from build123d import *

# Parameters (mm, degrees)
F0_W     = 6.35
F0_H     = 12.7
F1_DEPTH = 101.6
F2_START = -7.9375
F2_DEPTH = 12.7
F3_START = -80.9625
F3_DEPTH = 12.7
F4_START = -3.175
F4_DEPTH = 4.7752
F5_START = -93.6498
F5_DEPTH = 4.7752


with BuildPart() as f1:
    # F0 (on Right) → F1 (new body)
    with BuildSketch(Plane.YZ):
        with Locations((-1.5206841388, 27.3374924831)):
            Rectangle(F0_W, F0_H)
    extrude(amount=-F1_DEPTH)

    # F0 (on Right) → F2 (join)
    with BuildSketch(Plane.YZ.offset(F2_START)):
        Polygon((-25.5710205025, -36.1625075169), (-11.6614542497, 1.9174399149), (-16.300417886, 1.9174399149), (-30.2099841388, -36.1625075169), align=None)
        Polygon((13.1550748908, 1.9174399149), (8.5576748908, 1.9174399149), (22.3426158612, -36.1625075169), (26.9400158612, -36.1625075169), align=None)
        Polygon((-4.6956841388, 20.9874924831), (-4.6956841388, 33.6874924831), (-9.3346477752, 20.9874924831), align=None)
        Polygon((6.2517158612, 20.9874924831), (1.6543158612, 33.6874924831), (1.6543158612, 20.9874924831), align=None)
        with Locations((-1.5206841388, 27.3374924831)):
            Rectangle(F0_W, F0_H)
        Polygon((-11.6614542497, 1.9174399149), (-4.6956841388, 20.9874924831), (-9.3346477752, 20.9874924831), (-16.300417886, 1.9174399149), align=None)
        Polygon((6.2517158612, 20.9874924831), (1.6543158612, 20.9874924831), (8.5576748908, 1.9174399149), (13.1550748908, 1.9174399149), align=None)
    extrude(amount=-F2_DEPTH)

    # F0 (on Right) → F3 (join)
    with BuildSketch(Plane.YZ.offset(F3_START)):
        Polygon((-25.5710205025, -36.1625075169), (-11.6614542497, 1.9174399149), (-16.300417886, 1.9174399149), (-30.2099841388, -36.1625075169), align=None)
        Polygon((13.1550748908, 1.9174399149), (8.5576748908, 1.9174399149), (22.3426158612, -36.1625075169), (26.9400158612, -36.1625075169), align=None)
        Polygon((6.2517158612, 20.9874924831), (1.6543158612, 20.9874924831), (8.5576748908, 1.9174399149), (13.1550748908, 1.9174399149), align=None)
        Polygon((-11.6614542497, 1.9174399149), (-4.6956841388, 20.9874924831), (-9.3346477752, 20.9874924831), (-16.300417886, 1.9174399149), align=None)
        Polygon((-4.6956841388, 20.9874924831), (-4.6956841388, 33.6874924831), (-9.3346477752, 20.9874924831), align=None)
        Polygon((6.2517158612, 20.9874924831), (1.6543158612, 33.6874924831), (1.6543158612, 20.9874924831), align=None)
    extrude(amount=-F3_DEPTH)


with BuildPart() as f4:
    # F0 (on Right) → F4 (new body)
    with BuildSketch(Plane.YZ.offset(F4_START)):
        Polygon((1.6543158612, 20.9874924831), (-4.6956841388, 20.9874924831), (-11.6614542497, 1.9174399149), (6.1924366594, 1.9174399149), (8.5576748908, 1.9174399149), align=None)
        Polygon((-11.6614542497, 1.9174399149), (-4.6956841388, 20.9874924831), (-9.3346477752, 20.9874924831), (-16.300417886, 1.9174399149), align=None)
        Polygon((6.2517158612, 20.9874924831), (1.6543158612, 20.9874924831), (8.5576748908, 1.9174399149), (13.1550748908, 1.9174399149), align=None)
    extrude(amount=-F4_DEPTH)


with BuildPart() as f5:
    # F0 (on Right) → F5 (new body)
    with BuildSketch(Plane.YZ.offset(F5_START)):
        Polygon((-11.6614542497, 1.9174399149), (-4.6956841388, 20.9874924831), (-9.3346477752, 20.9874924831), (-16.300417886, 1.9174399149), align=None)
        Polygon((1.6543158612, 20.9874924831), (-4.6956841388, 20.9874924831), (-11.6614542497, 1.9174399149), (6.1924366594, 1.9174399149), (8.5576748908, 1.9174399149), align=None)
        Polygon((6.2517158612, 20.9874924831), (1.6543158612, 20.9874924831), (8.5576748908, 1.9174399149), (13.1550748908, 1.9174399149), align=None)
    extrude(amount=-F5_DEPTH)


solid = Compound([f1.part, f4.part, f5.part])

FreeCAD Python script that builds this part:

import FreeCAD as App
import Part
import Sketcher

V = App.Vector
Q = App.Units.Quantity


def add_polygon(sketch, points):
    """Adds a closed chain of lines whose ends are joined by coincident constraints."""
    first, n = sketch.GeometryCount, len(points)
    for a, b in zip(points, points[1:] + points[:1]):
        sketch.addGeometry(Part.LineSegment(App.Vector(*a, 0), App.Vector(*b, 0)), False)
    for i in range(n):
        sketch.addConstraint(Sketcher.Constraint("Coincident", first + i, 2, first + (i + 1) % n, 1))

doc = App.newDocument("Part")
body = doc.addObject("PartDesign::Body", "Body")

# Sketch on YZ plane
sketch1 = body.newObject("Sketcher::SketchObject", "Sketch")
sketch1.AttachmentSupport = (doc.getObject("YZ_Plane"), [""])
sketch1.MapMode = "FlatFace"
add_polygon(sketch1, [(-5, 34), (-5, 21), (2, 21), (2, 34)])  # lines 0-3
sketch1.addConstraint(Sketcher.Constraint("Vertical", 0))
sketch1.addConstraint(Sketcher.Constraint("Horizontal", 1))
sketch1.addConstraint(Sketcher.Constraint("Vertical", 2))
sketch1.addConstraint(Sketcher.Constraint("Horizontal", 3))
sketch1.addConstraint(Sketcher.Constraint("DistanceY", 0, 2, 0, 1, Q("0.5 in")))
sketch1.addConstraint(Sketcher.Constraint("DistanceX", 1, 1, 1, 2, Q("0.25 in")))
sketch1.addConstraint(Sketcher.Constraint("DistanceX", 0, 2, -1, 1, 4.695684))
sketch1.addConstraint(Sketcher.Constraint("DistanceY", -1, 1, 0, 2, 20.987492))
pad1 = body.newObject("PartDesign::Pad", "Pad")
pad1.Profile = sketch1
pad1.Length = Q("4 in")
pad1.Reversed = True

# Sketch on YZ plane
sketch2 = body.newObject("Sketcher::SketchObject", "Sketch001")
sketch2.AttachmentSupport = (doc.getObject("YZ_Plane"), [""])
sketch2.MapMode = "FlatFace"
sketch2.AttachmentOffset = App.Placement(V(0, 0, -0.3125 * 25.4), App.Rotation())
add_polygon(sketch2, [(-25.6, -36.2), (-11.7, 1.9), (-4.7, 21), (1.7, 21), (8.6, 1.9), (22.3, -36.2), (26.9, -36.2), (13.2, 1.9), (6.3, 21), (1.7, 33.7), (-4.7, 33.7), (-9.3, 21), (-30.2, -36.2)])  # lines 0-12
sketch2.addConstraint(Sketcher.Constraint("Horizontal", 2))
sketch2.addConstraint(Sketcher.Constraint("Horizontal", 5))
sketch2.addConstraint(Sketcher.Constraint("Horizontal", 9))
sketch2.addConstraint(Sketcher.Constraint("Horizontal", 12))
sketch2.addConstraint(Sketcher.Constraint("Parallel", 0, 1))
sketch2.addConstraint(Sketcher.Constraint("Parallel", 3, 4))
sketch2.addConstraint(Sketcher.Constraint("Parallel", 4, 6))
sketch2.addConstraint(Sketcher.Constraint("Parallel", 6, 7))
sketch2.addConstraint(Sketcher.Constraint("Parallel", 7, 8))
sketch2.addConstraint(Sketcher.Constraint("Parallel", 1, 10))
sketch2.addConstraint(Sketcher.Constraint("Parallel", 10, 11))
sketch2.addConstraint(Sketcher.Constraint("Horizontal", 0, 2, 3, 2))
sketch2.addConstraint(Sketcher.Constraint("Horizontal", 3, 2, 6, 2))
sketch2.addConstraint(Sketcher.Constraint("Horizontal", 2, 2, 7, 2))
sketch2.addConstraint(Sketcher.Constraint("Horizontal", 7, 2, 10, 2))
sketch2.addConstraint(Sketcher.Constraint("Horizontal", 5, 2, 11, 2))
sketch2.addConstraint(Sketcher.Constraint("Vertical", 2, 2, 8, 2))
sketch2.addConstraint(Sketcher.Constraint("Vertical", 1, 2, 9, 2))
sketch2.addConstraint(Sketcher.Constraint("DistanceX", 2, 1, 2, 2, Q("0.25 in")))
sketch2.addConstraint(Sketcher.Constraint("DistanceY", 2, 2, 8, 2, Q("0.5 in")))
sketch2.addConstraint(Sketcher.Constraint("DistanceX", 5, 1, 5, 2, Q("0.181 in")))
sketch2.addConstraint(Sketcher.Constraint("DistanceY", 4, 2, 2, 2, Q("2.25 in")))
sketch2.addConstraint(Sketcher.Constraint("DistanceX", 11, 2, 5, 2, Q("2.25 in")))
sketch2.addConstraint(Sketcher.Constraint("DistanceY", -1, 1, 0, 2, 1.91744))
sketch2.addConstraint(Sketcher.Constraint("DistanceX", 12, 2, -1, 1, 25.571021))
sketch2.addConstraint(Sketcher.Constraint("DistanceX", 0, 2, 1, 2, 6.96577))
pad2 = body.newObject("PartDesign::Pad", "Pad001")
pad2.Profile = sketch2
pad2.Length = Q("0.5 in")
pad2.Reversed = True

# Sketch on YZ plane
sketch3 = body.newObject("Sketcher::SketchObject", "Sketch002")
sketch3.AttachmentSupport = (doc.getObject("YZ_Plane"), [""])
sketch3.MapMode = "FlatFace"
sketch3.AttachmentOffset = App.Placement(V(0, 0, -3.1875 * 25.4), App.Rotation())
add_polygon(sketch3, [(-25.6, -36.2), (-11.7, 1.9), (-4.7, 21), (-4.7, 33.7), (-9.3, 21), (-30.2, -36.2)])  # lines 0-5
add_polygon(sketch3, [(8.6, 1.9), (22.3, -36.2), (26.9, -36.2), (13.2, 1.9), (6.3, 21), (1.7, 33.7), (1.7, 21)])  # lines 6-12
sketch3.addConstraint(Sketcher.Constraint("Vertical", 2))
sketch3.addConstraint(Sketcher.Constraint("Horizontal", 5))
sketch3.addConstraint(Sketcher.Constraint("Horizontal", 7))
sketch3.addConstraint(Sketcher.Constraint("Vertical", 11))
sketch3.addConstraint(Sketcher.Constraint("Parallel", 0, 1))
sketch3.addConstraint(Sketcher.Constraint("Parallel", 1, 3))
sketch3.addConstraint(Sketcher.Constraint("Parallel", 3, 4))
sketch3.addConstraint(Sketcher.Constraint("Parallel", 6, 8))
sketch3.addConstraint(Sketcher.Constraint("Parallel", 8, 9))
sketch3.addConstraint(Sketcher.Constraint("Parallel", 9, 10))
sketch3.addConstraint(Sketcher.Constraint("Parallel", 10, 12))
sketch3.addConstraint(Sketcher.Constraint("Horizontal", 1, 2, 3, 2))
sketch3.addConstraint(Sketcher.Constraint("Horizontal", 5, 2, 6, 2))
sketch3.addConstraint(Sketcher.Constraint("Horizontal", 0, 2, 8, 2))
sketch3.addConstraint(Sketcher.Constraint("Horizontal", 3, 2, 9, 2))
sketch3.addConstraint(Sketcher.Constraint("Horizontal", 2, 2, 10, 2))
sketch3.addConstraint(Sketcher.Constraint("Horizontal", 9, 2, 11, 2))
sketch3.addConstraint(Sketcher.Constraint("Horizontal", 8, 2, 12, 2))
sketch3.addConstraint(Sketcher.Constraint("DistanceY", 2, 1, 2, 2, Q("0.5 in")))
sketch3.addConstraint(Sketcher.Constraint("DistanceX", 7, 1, 7, 2, Q("0.181 in")))
sketch3.addConstraint(Sketcher.Constraint("DistanceY", 4, 2, 3, 2, Q("2.25 in")))
sketch3.addConstraint(Sketcher.Constraint("DistanceX", 4, 2, 7, 2, Q("2.25 in")))
sketch3.addConstraint(Sketcher.Constraint("DistanceX", 2, 2, 10, 2, Q("0.25 in")))
sketch3.addConstraint(Sketcher.Constraint("DistanceY", -1, 1, 0, 2, 1.91744))
sketch3.addConstraint(Sketcher.Constraint("DistanceX", 5, 2, -1, 1, 25.571021))
sketch3.addConstraint(Sketcher.Constraint("DistanceX", 0, 2, 1, 2, 6.96577))
pad3 = body.newObject("PartDesign::Pad", "Pad002")
pad3.Profile = sketch3
pad3.Length = Q("0.5 in")
pad3.Reversed = True
body2 = doc.addObject("PartDesign::Body", "Body001")

# Sketch on YZ plane
sketch4 = body2.newObject("Sketcher::SketchObject", "Sketch003")
sketch4.AttachmentSupport = (doc.getObject("YZ_Plane001"), [""])
sketch4.MapMode = "FlatFace"
sketch4.AttachmentOffset = App.Placement(V(0, 0, -0.125 * 25.4), App.Rotation())
add_polygon(sketch4, [(-9, 21), (-16, 2), (13, 2), (6, 21)])  # lines 0-3
sketch4.addConstraint(Sketcher.Constraint("Horizontal", 1))
sketch4.addConstraint(Sketcher.Constraint("Horizontal", 3))
sketch4.addConstraint(Sketcher.Constraint("DistanceX", 1, 1, 1, 2, 29.455493))
sketch4.addConstraint(Sketcher.Constraint("DistanceX", 3, 2, 3, 1, 15.586364))
sketch4.addConstraint(Sketcher.Constraint("DistanceY", -1, 1, 0, 2, 1.91744))
sketch4.addConstraint(Sketcher.Constraint("DistanceX", 2, 2, 1, 2, 6.903359))
sketch4.addConstraint(Sketcher.Constraint("Distance", 0, 20.302435))
sketch4.addConstraint(Sketcher.Constraint("DistanceX", 0, 2, -1, 1, 16.300418))
pad4 = body2.newObject("PartDesign::Pad", "Pad003")
pad4.Profile = sketch4
pad4.Length = Q("0.188 in")
pad4.Reversed = True
body3 = doc.addObject("PartDesign::Body", "Body002")

# Sketch on YZ plane
sketch5 = body3.newObject("Sketcher::SketchObject", "Sketch004")
sketch5.AttachmentSupport = (doc.getObject("YZ_Plane002"), [""])
sketch5.MapMode = "FlatFace"
sketch5.AttachmentOffset = App.Placement(V(0, 0, -3.687 * 25.4), App.Rotation())
add_polygon(sketch5, [(-9, 21), (-16, 2), (13, 2), (6, 21)])  # lines 0-3
sketch5.addConstraint(Sketcher.Constraint("Horizontal", 1))
sketch5.addConstraint(Sketcher.Constraint("Horizontal", 3))
sketch5.addConstraint(Sketcher.Constraint("DistanceX", 1, 1, 1, 2, 29.455493))
sketch5.addConstraint(Sketcher.Constraint("DistanceX", 3, 2, 3, 1, 15.586364))
sketch5.addConstraint(Sketcher.Constraint("DistanceY", -1, 1, 0, 2, 1.91744))
sketch5.addConstraint(Sketcher.Constraint("DistanceX", 2, 2, 1, 2, 6.903359))
sketch5.addConstraint(Sketcher.Constraint("Distance", 0, 20.302435))
sketch5.addConstraint(Sketcher.Constraint("DistanceX", 0, 2, -1, 1, 16.300418))
pad5 = body3.newObject("PartDesign::Pad", "Pad004")
pad5.Profile = sketch5
pad5.Length = Q("0.188 in")
pad5.Reversed = True

doc.recompute()
